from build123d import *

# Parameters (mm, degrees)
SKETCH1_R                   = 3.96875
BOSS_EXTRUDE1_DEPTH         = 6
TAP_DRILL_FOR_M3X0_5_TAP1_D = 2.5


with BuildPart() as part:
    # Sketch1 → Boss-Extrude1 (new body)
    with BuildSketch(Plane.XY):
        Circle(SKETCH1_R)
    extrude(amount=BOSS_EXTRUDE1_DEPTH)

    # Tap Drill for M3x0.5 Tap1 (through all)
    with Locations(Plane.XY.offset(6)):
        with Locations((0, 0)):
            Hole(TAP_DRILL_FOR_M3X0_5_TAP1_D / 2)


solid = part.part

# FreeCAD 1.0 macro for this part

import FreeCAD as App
import Part
import Sketcher
Q = App.Units.Quantity

doc = App.newDocument("Part")
body = doc.addObject("PartDesign::Body", "Body")

# Sketch on XY plane
sketch1 = body.newObject("Sketcher::SketchObject", "Sketch")
sketch1.AttachmentSupport = (doc.getObject("XY_Plane"), [""])
sketch1.MapMode = "FlatFace"
sketch1.addGeometry(Part.Circle(App.Vector(0, 0, 0), App.Vector(0, 0, 1), 4), False)
sketch1.addConstraint([
    Sketcher.Constraint("Coincident", 0, 3, -1, 1),
    Sketcher.Constraint("Diameter", 0, Q("7.9375 mm")),
])
pad1 = body.newObject("PartDesign::Pad", "Pad")
pad1.Profile = sketch1
pad1.Length = 6

# Sketch on XY plane
sketch2 = body.newObject("Sketcher::SketchObject", "Sketch001")
sketch2.AttachmentSupport = (doc.getObject("XY_Plane"), [""])
sketch2.MapMode = "FlatFace"
sketch2.AttachmentOffset = App.Placement(App.Vector(0, 0, 6), App.Rotation())
sketch2.addGeometry(Part.Circle(App.Vector(0, 0, 0), App.Vector(0, 0, 1), 1.2), False)
sketch2.addConstraint([
    Sketcher.Constraint("Coincident", 0, 3, -1, 1),
    Sketcher.Constraint("Diameter", 0, Q("2.5 mm")),
])
doc.recompute()
hole = body.newObject("PartDesign::Hole", "Hole")
hole.Profile = sketch2
hole.ThreadType = "None"
hole.Diameter = 2.5
hole.DepthType = "ThroughAll"

doc.recompute()
